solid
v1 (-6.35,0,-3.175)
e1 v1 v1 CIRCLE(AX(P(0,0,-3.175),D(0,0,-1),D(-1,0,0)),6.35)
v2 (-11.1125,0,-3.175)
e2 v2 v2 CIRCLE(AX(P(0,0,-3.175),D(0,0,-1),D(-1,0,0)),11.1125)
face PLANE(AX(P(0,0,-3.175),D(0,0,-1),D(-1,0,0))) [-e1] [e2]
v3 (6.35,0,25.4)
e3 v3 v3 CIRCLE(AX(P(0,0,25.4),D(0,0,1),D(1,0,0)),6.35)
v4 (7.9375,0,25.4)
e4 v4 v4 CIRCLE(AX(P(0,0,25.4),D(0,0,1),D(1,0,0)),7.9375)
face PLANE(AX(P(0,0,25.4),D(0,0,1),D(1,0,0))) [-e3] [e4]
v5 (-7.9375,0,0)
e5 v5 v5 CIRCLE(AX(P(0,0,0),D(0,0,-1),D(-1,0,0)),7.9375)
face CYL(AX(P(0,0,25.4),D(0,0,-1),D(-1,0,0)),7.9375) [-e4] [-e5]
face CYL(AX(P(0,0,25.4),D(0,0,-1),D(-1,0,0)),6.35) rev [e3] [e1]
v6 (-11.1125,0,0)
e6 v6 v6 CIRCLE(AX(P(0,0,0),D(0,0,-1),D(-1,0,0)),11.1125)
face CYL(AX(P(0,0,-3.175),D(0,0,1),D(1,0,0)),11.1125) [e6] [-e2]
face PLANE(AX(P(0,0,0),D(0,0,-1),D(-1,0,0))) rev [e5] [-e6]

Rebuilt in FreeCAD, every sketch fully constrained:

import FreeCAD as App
import Part
import Sketcher
from FreeCAD import Vector
Q = App.Units.Quantity

doc = App.newDocument("Part")
params = doc.addObject("Spreadsheet::Sheet", "Params")
for row, (alias, value) in enumerate([
    ("sketch1_diameter", "0.5 in"),
    ("sketch1_diameter2", "0.625 in"),
    ("pad1_length", "1 in"),
    ("sketch2_diameter", "0.5 in"),
    ("sketch2_diameter2", "0.875 in"),
    ("pad2_length", "0.125 in"),
], start=1):
    params.set(f"A{row}", alias)
    params.set(f"B{row}", "=" + value)
    params.setAlias(f"B{row}", alias)

body = doc.addObject("PartDesign::Body", "Body")

sketch1 = body.newObject("Sketcher::SketchObject", "Sketch")
sketch1.AttachmentSupport = (doc.getObject("XY_Plane"), [""])
sketch1.MapMode = "FlatFace"
sketch1.addGeometry([
    Part.Circle(Vector(0, 0, 0), Vector(0, 0, 1), 8),
    Part.Circle(Vector(0, 0, 0), Vector(0, 0, 1), 6),
], False)
sketch1.addConstraint([
    Sketcher.Constraint("Coincident", 0, 3, -1, 1),
    Sketcher.Constraint("Coincident", 1, 3, -1, 1),
    Sketcher.Constraint("Diameter", 1, Q("0.5 in")),
    Sketcher.Constraint("Diameter", 0, Q("0.625 in")),
])
sketch1.setExpression("Constraints[2]", "Params.sketch1_diameter")
sketch1.setExpression("Constraints[3]", "Params.sketch1_diameter2")
pad1 = body.newObject("PartDesign::Pad", "Pad")
pad1.Profile = sketch1
pad1.setExpression("Length", "Params.pad1_length")

sketch2 = body.newObject("Sketcher::SketchObject", "Sketch001")
sketch2.AttachmentSupport = (doc.getObject("XY_Plane"), [""])
sketch2.MapMode = "FlatFace"
sketch2.addGeometry([
    Part.Circle(Vector(0, 0, 0), Vector(0, 0, 1), 11),
    Part.Circle(Vector(0, 0, 0), Vector(0, 0, 1), 6),
], False)
sketch2.addConstraint([
    Sketcher.Constraint("Coincident", 0, 3, -1, 1),
    Sketcher.Constraint("Coincident", 1, 3, -1, 1),
    Sketcher.Constraint("Diameter", 1, Q("0.5 in")),
    Sketcher.Constraint("Diameter", 0, Q("0.875 in")),
])
sketch2.setExpression("Constraints[2]", "Params.sketch2_diameter")
sketch2.setExpression("Constraints[3]", "Params.sketch2_diameter2")
pad2 = body.newObject("PartDesign::Pad", "Pad001")
pad2.Profile = sketch2
pad2.setExpression("Length", "Params.pad2_length")
pad2.Reversed = True

doc.recompute()
